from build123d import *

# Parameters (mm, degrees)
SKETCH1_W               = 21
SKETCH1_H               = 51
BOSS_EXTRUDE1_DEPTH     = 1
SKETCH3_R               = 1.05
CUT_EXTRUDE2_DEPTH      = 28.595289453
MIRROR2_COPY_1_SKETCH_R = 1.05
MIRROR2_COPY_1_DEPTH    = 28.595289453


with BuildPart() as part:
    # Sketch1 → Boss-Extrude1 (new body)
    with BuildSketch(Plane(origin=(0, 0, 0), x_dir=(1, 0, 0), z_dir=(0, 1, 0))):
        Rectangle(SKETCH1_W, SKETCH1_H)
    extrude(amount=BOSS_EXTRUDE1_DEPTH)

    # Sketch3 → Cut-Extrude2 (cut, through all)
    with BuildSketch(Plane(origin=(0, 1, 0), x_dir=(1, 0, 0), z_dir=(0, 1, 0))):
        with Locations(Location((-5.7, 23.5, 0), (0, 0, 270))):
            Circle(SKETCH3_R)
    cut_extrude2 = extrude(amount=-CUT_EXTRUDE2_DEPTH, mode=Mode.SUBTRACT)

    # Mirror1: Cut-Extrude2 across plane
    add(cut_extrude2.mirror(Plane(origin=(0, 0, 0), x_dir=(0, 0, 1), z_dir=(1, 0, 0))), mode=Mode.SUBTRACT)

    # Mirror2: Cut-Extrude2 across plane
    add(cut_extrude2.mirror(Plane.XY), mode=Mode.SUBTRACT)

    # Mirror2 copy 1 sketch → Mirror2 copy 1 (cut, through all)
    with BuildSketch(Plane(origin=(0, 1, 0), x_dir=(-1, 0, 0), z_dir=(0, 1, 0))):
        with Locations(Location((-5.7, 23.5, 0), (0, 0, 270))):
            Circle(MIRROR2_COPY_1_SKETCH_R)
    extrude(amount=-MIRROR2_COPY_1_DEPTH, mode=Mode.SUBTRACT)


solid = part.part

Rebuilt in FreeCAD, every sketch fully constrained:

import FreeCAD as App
import Part
import Sketcher

V = App.Vector

doc = App.newDocument("Part")
body = doc.addObject("PartDesign::Body", "Body")

# Sketch on XZ plane
sketch1 = body.newObject("Sketcher::SketchObject", "Sketch")
sketch1.AttachmentSupport = (doc.getObject("XZ_Plane"), [""])
sketch1.MapMode = "FlatFace"
sketch1.addGeometry([
    Part.LineSegment(V(-10, -26, 0), V(-10, 26, 0)),
    Part.LineSegment(V(-10, 26, 0), V(10, 26, 0)),
    Part.LineSegment(V(10, 26, 0), V(10, -26, 0)),
    Part.LineSegment(V(10, -26, 0), V(-10, -26, 0)),
], False)
sketch1.addConstraint([
    Sketcher.Constraint("Coincident", 0, 2, 1, 1),
    Sketcher.Constraint("Coincident", 1, 2, 2, 1),
    Sketcher.Constraint("Coincident", 2, 2, 3, 1),
    Sketcher.Constraint("Coincident", 3, 2, 0, 1),
    Sketcher.Constraint("Vertical", 0),
    Sketcher.Constraint("Horizontal", 1),
    Sketcher.Constraint("Vertical", 2),
    Sketcher.Constraint("Horizontal", 3),
    Sketcher.Constraint("Symmetric", 0, 2, 2, 2, -1, 1),
    Sketcher.Constraint("DistanceX", 1, 1, 1, 2, 21.0),
    Sketcher.Constraint("DistanceY", 0, 1, 0, 2, 51.0),
])
pad1 = body.newObject("PartDesign::Pad", "Pad")
pad1.Profile = sketch1
pad1.Length = 1
pad1.Reversed = True

# Sketch on XZ plane
sketch2 = body.newObject("Sketcher::SketchObject", "Sketch001")
sketch2.AttachmentSupport = (doc.getObject("XZ_Plane"), [""])
sketch2.MapMode = "FlatFace"
sketch2.AttachmentOffset = App.Placement(V(0, 0, -1), App.Rotation())
sketch2.addGeometry(Part.Circle(V(-5.7, -23.5, 0), V(0, 0, 1), 1.1), False)
sketch2.addConstraint([
    Sketcher.Constraint("Diameter", 0, 2.1),
    Sketcher.Constraint("DistanceX", 0, 3, -1, 1, 5.7),
    Sketcher.Constraint("DistanceY", 0, 3, -1, 1, 23.5),
])
pocket1 = body.newObject("PartDesign::Pocket", "Pocket")
pocket1.Profile = sketch2
pocket1.Type = "ThroughAll"
pocket1.Reversed = True
doc.recompute()

mirrored = body.newObject("PartDesign::Mirrored", "Mirrored")
mirrored.Originals = [pocket1]
mirrored.MirrorPlane = (doc.getObject("YZ_Plane"), [""])
body.Tip = mirrored
doc.recompute()

mirrored2 = body.newObject("PartDesign::Mirrored", "Mirrored001")
mirrored2.Originals = [pocket1]
mirrored2.MirrorPlane = (doc.getObject("XY_Plane"), [""])
body.Tip = mirrored2

# Sketch on XZ plane
sketch3 = body.newObject("Sketcher::SketchObject", "Sketch002")
sketch3.AttachmentSupport = (doc.getObject("XZ_Plane"), [""])
sketch3.MapMode = "FlatFace"
sketch3.AttachmentOffset = App.Placement(V(0, 0, -1), App.Rotation())
sketch3.addGeometry(Part.Circle(V(5.7, 23.5, 0), V(0, 0, 1), 1.1), False)
sketch3.addConstraint([
    Sketcher.Constraint("Diameter", 0, 2.1),
    Sketcher.Constraint("DistanceX", -1, 1, 0, 3, 5.7),
    Sketcher.Constraint("DistanceY", -1, 1, 0, 3, 23.5),
])
pocket2 = body.newObject("PartDesign::Pocket", "Pocket001")
pocket2.Profile = sketch3
pocket2.Type = "ThroughAll"
pocket2.Reversed = True

doc.recompute()
